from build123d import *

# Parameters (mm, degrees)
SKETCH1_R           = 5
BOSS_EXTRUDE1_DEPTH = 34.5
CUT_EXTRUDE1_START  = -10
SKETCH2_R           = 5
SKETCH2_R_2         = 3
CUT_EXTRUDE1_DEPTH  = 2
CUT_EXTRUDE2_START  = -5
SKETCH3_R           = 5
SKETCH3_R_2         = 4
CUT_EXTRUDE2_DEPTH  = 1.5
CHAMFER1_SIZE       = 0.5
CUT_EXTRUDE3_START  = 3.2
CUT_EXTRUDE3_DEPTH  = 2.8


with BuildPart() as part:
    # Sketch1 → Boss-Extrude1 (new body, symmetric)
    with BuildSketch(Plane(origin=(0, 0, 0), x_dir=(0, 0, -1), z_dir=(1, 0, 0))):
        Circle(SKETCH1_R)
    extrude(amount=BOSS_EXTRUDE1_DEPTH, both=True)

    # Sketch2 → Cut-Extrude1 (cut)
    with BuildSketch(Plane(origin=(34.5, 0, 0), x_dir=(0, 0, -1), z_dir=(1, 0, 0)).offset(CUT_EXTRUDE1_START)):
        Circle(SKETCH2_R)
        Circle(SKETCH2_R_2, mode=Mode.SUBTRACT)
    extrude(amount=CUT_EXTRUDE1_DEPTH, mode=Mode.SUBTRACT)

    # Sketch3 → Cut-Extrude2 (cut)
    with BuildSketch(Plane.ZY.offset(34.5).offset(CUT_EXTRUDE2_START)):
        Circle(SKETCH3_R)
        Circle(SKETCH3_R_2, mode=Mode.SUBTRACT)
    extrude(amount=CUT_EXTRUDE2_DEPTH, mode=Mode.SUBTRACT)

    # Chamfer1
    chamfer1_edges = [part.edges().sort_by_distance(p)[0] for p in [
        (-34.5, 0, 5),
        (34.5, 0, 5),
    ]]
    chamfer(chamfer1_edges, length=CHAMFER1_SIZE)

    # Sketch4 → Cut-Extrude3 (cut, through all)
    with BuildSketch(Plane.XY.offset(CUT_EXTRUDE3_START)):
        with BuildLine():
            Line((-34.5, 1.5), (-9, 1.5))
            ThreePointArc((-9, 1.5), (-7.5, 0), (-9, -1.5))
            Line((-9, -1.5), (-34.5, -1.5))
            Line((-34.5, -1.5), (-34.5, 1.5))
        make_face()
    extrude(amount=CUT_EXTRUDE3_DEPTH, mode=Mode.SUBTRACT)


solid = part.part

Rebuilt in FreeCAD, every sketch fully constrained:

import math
import FreeCAD as App
import Part
import Sketcher

V = App.Vector
Q = App.Units.Quantity


def edges_at(feature, points):
    """Names of the edges that pass closest to the given points."""
    edges = feature.Shape.Edges
    near = lambda p: min(range(len(edges)), key=lambda i: edges[i].distToShape(Part.Vertex(*p))[0])
    return sorted({f"Edge{near(p) + 1}" for p in points})

doc = App.newDocument("Part")
params = doc.addObject("Spreadsheet::Sheet", "Params")
for row, (alias, value) in enumerate([
    ("sketch1_diameter", "10 mm"),
    ("pad1_length", "69 mm"),
    ("sketch2_diameter", "10 mm"),
    ("sketch2_diameter2", "6 mm"),
    ("pocket1_length", "2 mm"),
    ("sketch3_diameter", "10 mm"),
    ("sketch3_diameter2", "8 mm"),
    ("pocket2_length", "1.5 mm"),
    ("chamfer_size", "0.5 mm"),
    ("sketch4_radius", "1.5 mm"),
    ("sketch4_width", "25.5 mm"),
], start=1):
    params.set(f"A{row}", alias)
    params.set(f"B{row}", "=" + value)
    params.setAlias(f"B{row}", alias)

body = doc.addObject("PartDesign::Body", "Body")

# Sketch on YZ plane
sketch1 = body.newObject("Sketcher::SketchObject", "Sketch")
sketch1.AttachmentSupport = (doc.getObject("YZ_Plane"), [""])
sketch1.MapMode = "FlatFace"
sketch1.addGeometry(Part.Circle(V(0, 0, 0), V(0, 0, 1), 5), False)
sketch1.addConstraint([
    Sketcher.Constraint("Coincident", 0, 3, -1, 1),
    Sketcher.Constraint("Diameter", 0, Q("10 mm")),
])
sketch1.setExpression("Constraints[1]", "Params.sketch1_diameter")
pad1 = body.newObject("PartDesign::Pad", "Pad")
pad1.Profile = sketch1
pad1.setExpression("Length", "Params.pad1_length")
pad1.Midplane = True

# Sketch on YZ plane
sketch2 = body.newObject("Sketcher::SketchObject", "Sketch001")
sketch2.AttachmentSupport = (doc.getObject("YZ_Plane"), [""])
sketch2.MapMode = "FlatFace"
sketch2.AttachmentOffset = App.Placement(V(0, 0, 24.5), App.Rotation())
sketch2.addGeometry([
    Part.Circle(V(0, 0, 0), V(0, 0, 1), 5),
    Part.Circle(V(0, 0, 0), V(0, 0, 1), 3),
], False)
sketch2.addConstraint([
    Sketcher.Constraint("Coincident", 0, 3, -1, 1),
    Sketcher.Constraint("Coincident", 1, 3, -1, 1),
    Sketcher.Constraint("Diameter", 0, Q("10 mm")),
    Sketcher.Constraint("Diameter", 1, Q("6 mm")),
])
sketch2.setExpression("Constraints[2]", "Params.sketch2_diameter")
sketch2.setExpression("Constraints[3]", "Params.sketch2_diameter2")
pocket1 = body.newObject("PartDesign::Pocket", "Pocket")
pocket1.Profile = sketch2
pocket1.setExpression("Length", "Params.pocket1_length")
pocket1.Reversed = True

# Sketch on YZ plane
sketch3 = body.newObject("Sketcher::SketchObject", "Sketch002")
sketch3.AttachmentSupport = (doc.getObject("YZ_Plane"), [""])
sketch3.MapMode = "FlatFace"
sketch3.AttachmentOffset = App.Placement(V(0, 0, -29.5), App.Rotation())
sketch3.addGeometry([
    Part.Circle(V(0, 0, 0), V(0, 0, 1), 5),
    Part.Circle(V(0, 0, 0), V(0, 0, 1), 4),
], False)
sketch3.addConstraint([
    Sketcher.Constraint("Coincident", 0, 3, -1, 1),
    Sketcher.Constraint("Coincident", 1, 3, -1, 1),
    Sketcher.Constraint("Diameter", 0, Q("10 mm")),
    Sketcher.Constraint("Diameter", 1, Q("8 mm")),
])
sketch3.setExpression("Constraints[2]", "Params.sketch3_diameter")
sketch3.setExpression("Constraints[3]", "Params.sketch3_diameter2")
pocket2 = body.newObject("PartDesign::Pocket", "Pocket001")
pocket2.Profile = sketch3
pocket2.setExpression("Length", "Params.pocket2_length")
doc.recompute()

chamfer = body.newObject("PartDesign::Chamfer", "Chamfer")
chamfer.Base = (pocket2, edges_at(pocket2, [(-34.5, 0, 5), (34.5, 0, 5)]))
chamfer.setExpression("Size", "Params.chamfer_size")

# Sketch on XY plane
sketch4 = body.newObject("Sketcher::SketchObject", "Sketch003")
sketch4.AttachmentSupport = (doc.getObject("XY_Plane"), [""])
sketch4.MapMode = "FlatFace"
sketch4.AttachmentOffset = App.Placement(V(0, 0, 3.2), App.Rotation())
sketch4.addGeometry([
    Part.LineSegment(V(-9, 1.5, 0), V(-34.5, 1.5, 0)),
    Part.LineSegment(V(-34.5, 1.5, 0), V(-34.5, -1.5, 0)),
    Part.LineSegment(V(-34.5, -1.5, 0), V(-9, -1.5, 0)),
    Part.ArcOfCircle(Part.Circle(V(-9, 0, 0), V(0, 0, 1), 1.5), math.radians(-90), math.radians(90)),
], False)
sketch4.addConstraint([
    Sketcher.Constraint("Coincident", 0, 2, 1, 1),
    Sketcher.Constraint("Coincident", 1, 2, 2, 1),
    Sketcher.Constraint("Tangent", 2, 2, 3, 1),
    Sketcher.Constraint("Tangent", 3, 2, 0, 1),
    Sketcher.Constraint("Horizontal", 0),
    Sketcher.Constraint("Vertical", 1),
    Sketcher.Constraint("Horizontal", 2),
    Sketcher.Constraint("PointOnObject", 3, 3, -1),
    Sketcher.Constraint("Radius", 3, Q("1.5 mm")),
    Sketcher.Constraint("DistanceX", 0, 2, 0, 1, Q("25.5 mm")),
    Sketcher.Constraint("DistanceX", 3, 3, -1, 1, Q("9 mm")),
])
sketch4.setExpression("Constraints[8]", "Params.sketch4_radius")
sketch4.setExpression("Constraints[9]", "Params.sketch4_width")
pocket3 = body.newObject("PartDesign::Pocket", "Pocket002")
pocket3.Profile = sketch4
pocket3.Type = "ThroughAll"
pocket3.Reversed = True

doc.recompute()
